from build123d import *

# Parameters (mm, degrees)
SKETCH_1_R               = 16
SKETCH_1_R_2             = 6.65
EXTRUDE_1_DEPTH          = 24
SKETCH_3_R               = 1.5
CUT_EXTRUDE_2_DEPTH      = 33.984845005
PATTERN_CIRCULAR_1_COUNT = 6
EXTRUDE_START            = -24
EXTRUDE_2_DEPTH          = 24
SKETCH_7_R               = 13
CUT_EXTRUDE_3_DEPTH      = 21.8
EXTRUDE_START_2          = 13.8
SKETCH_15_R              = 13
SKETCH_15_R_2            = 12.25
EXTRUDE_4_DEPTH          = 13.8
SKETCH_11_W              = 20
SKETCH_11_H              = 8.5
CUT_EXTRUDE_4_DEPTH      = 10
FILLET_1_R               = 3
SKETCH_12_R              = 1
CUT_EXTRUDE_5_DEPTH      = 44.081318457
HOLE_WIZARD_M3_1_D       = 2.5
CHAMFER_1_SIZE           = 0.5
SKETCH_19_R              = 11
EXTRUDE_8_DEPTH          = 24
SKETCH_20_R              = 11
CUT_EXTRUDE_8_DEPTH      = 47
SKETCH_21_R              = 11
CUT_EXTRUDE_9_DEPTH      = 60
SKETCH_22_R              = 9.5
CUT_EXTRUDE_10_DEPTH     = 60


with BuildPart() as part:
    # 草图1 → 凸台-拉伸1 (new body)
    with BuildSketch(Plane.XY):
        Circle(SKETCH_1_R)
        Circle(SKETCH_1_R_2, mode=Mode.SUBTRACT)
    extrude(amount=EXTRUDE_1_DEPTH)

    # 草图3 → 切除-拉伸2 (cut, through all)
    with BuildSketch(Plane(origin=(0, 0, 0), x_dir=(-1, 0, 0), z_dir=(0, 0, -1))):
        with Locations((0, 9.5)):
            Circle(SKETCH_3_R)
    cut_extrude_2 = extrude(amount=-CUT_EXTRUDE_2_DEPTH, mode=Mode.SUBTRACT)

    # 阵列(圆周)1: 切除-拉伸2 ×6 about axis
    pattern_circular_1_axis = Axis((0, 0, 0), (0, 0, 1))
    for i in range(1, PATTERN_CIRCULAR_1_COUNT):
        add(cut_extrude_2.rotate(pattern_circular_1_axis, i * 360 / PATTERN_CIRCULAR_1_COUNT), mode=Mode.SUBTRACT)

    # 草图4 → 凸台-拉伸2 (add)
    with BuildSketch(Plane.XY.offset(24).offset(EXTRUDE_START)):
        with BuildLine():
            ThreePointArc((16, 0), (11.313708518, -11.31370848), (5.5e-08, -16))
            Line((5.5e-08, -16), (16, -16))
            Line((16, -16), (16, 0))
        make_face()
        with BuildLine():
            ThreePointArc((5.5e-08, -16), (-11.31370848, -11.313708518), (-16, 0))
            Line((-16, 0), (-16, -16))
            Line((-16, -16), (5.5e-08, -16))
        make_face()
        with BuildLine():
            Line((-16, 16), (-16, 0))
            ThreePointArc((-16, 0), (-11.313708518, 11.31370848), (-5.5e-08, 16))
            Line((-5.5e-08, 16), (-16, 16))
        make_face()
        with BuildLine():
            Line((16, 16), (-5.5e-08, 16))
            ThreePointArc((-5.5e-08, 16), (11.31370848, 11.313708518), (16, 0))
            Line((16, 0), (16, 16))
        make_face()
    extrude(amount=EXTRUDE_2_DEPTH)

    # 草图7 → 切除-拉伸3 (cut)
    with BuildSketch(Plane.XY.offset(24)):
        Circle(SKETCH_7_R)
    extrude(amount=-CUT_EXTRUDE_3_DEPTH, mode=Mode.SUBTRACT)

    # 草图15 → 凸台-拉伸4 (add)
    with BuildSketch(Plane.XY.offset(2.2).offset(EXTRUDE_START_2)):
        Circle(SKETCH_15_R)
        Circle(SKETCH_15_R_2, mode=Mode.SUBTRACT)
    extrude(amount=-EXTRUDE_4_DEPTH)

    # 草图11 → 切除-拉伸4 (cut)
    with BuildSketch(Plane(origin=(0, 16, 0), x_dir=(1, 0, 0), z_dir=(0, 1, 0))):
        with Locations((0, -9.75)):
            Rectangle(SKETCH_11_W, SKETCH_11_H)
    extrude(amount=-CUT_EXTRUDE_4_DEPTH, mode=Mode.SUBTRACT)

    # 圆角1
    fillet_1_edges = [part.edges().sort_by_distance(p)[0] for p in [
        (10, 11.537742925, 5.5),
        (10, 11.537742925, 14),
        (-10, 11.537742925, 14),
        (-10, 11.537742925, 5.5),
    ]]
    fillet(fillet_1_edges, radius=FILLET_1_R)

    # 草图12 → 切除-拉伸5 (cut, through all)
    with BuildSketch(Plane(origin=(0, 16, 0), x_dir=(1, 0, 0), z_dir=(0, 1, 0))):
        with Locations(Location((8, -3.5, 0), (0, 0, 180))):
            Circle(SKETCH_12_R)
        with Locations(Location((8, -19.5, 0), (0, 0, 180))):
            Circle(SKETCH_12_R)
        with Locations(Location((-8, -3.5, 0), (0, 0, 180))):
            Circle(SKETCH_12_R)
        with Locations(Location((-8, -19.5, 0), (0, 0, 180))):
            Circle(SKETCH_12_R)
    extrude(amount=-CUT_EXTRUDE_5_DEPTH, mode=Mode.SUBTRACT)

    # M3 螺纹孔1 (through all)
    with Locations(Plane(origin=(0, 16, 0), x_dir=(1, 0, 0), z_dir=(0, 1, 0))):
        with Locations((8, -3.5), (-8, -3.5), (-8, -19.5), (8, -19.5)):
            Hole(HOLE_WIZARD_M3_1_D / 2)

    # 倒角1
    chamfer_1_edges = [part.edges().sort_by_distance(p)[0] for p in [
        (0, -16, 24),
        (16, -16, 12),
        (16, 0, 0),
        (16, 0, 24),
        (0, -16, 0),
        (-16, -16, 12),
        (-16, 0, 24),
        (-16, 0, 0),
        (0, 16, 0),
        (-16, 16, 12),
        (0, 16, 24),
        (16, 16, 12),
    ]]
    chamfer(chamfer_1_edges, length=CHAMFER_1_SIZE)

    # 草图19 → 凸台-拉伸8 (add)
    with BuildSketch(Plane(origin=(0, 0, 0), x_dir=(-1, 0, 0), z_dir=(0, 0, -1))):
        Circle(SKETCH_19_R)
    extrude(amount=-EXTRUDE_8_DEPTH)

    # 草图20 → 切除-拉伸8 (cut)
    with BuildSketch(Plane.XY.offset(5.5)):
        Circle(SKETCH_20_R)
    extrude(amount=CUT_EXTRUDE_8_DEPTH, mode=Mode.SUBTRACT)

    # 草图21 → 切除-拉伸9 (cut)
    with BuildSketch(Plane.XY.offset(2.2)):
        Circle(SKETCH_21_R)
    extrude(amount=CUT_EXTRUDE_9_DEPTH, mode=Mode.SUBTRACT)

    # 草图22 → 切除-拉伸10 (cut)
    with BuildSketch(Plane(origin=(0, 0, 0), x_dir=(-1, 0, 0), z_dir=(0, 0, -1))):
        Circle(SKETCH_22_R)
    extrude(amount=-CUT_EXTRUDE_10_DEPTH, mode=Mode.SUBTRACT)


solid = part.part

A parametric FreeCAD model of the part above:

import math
import FreeCAD as App
import Part
import Sketcher

V = App.Vector
Q = App.Units.Quantity


def edges_at(feature, points):
    """Names of the edges that pass closest to the given points."""
    edges = feature.Shape.Edges
    near = lambda p: min(range(len(edges)), key=lambda i: edges[i].distToShape(Part.Vertex(*p))[0])
    return sorted({f"Edge{near(p) + 1}" for p in points})

doc = App.newDocument("Part")
body = doc.addObject("PartDesign::Body", "Body")

# Sketch on XY plane
sketch1 = doc.addObject("Sketcher::SketchObject", "Sketch")
body.addObject(sketch1)
sketch1.AttachmentSupport = (doc.XY_Plane, [""])
sketch1.MapMode = "FlatFace"
sketch1.addGeometry(Part.Circle(V(0, 0, 0), V(0, 0, 1), 16), False)
sketch1.addGeometry(Part.Circle(V(0, 0, 0), V(0, 0, 1), 7), False)
sketch1.addConstraint(Sketcher.Constraint("Coincident", 0, 3, -1, 1))
sketch1.addConstraint(Sketcher.Constraint("Coincident", 1, 3, -1, 1))
sketch1.addConstraint(Sketcher.Constraint("Diameter", 0, Q("32 mm")))
sketch1.addConstraint(Sketcher.Constraint("Diameter", 1, Q("13.3 mm")))
pad1 = doc.addObject("PartDesign::Pad", "Pad")
body.addObject(pad1)
pad1.Profile = sketch1
pad1.Length = 24

# Sketch on XY plane
sketch2 = doc.addObject("Sketcher::SketchObject", "Sketch001")
body.addObject(sketch2)
sketch2.AttachmentSupport = (doc.XY_Plane, [""])
sketch2.MapMode = "FlatFace"
sketch2.addGeometry(Part.Circle(V(0, 9.5, 0), V(0, 0, 1), 1.5), False)
sketch2.addConstraint(Sketcher.Constraint("PointOnObject", 0, 3, -2))
sketch2.addConstraint(Sketcher.Constraint("Diameter", 0, Q("3 mm")))
sketch2.addConstraint(Sketcher.Constraint("DistanceY", -1, 1, 0, 3, Q("9.5 mm")))
pocket1 = doc.addObject("PartDesign::Pocket", "Pocket")
body.addObject(pocket1)
pocket1.Profile = sketch2
pocket1.Type = "ThroughAll"
pocket1.Reversed = True
doc.recompute()

polarpattern = doc.addObject("PartDesign::PolarPattern", "PolarPattern")
body.addObject(polarpattern)
polarpattern.Originals = [pocket1]
polarpattern.Axis = (doc.Z_Axis, [""])
polarpattern.Angle = 360
polarpattern.Occurrences = 6
body.Tip = polarpattern

# Sketch on XY plane
sketch3 = doc.addObject("Sketcher::SketchObject", "Sketch002")
body.addObject(sketch3)
sketch3.AttachmentSupport = (doc.XY_Plane, [""])
sketch3.MapMode = "FlatFace"
sketch3.addGeometry(Part.ArcOfCircle(Part.Circle(V(0, 0, 0), V(0, 0, 1), 16), math.radians(-90), math.radians(0)), False)
sketch3.addGeometry(Part.LineSegment(V(0, -16, 0), V(16, -16, 0)), False)
sketch3.addGeometry(Part.LineSegment(V(16, -16, 0), V(16, 0, 0)), False)
sketch3.addGeometry(Part.ArcOfCircle(Part.Circle(V(0, 0, 0), V(0, 0, 1), 16), math.radians(180), math.radians(270)), False)
sketch3.addGeometry(Part.LineSegment(V(-16, 0, 0), V(-16, -16, 0)), False)
sketch3.addGeometry(Part.LineSegment(V(-16, -16, 0), V(0, -16, 0)), False)
sketch3.addGeometry(Part.LineSegment(V(-16, 16, 0), V(-16, 0, 0)), False)
sketch3.addGeometry(Part.ArcOfCircle(Part.Circle(V(0, 0, 0), V(0, 0, 1), 16), math.radians(90), math.radians(180)), False)
sketch3.addGeometry(Part.LineSegment(V(0, 16, 0), V(-16, 16, 0)), False)
sketch3.addGeometry(Part.LineSegment(V(16, 16, 0), V(0, 16, 0)), False)
sketch3.addGeometry(Part.ArcOfCircle(Part.Circle(V(0, 0, 0), V(0, 0, 1), 16), math.radians(0), math.radians(90)), False)
sketch3.addGeometry(Part.LineSegment(V(16, 0, 0), V(16, 16, 0)), False)
sketch3.addConstraint(Sketcher.Constraint("Tangent", 0, 1, 1, 1))
sketch3.addConstraint(Sketcher.Constraint("Coincident", 1, 2, 2, 1))
sketch3.addConstraint(Sketcher.Constraint("Tangent", 2, 2, 0, 2))
sketch3.addConstraint(Sketcher.Constraint("Tangent", 3, 1, 4, 1))
sketch3.addConstraint(Sketcher.Constraint("Coincident", 4, 2, 5, 1))
sketch3.addConstraint(Sketcher.Constraint("Tangent", 5, 2, 3, 2))
sketch3.addConstraint(Sketcher.Constraint("Tangent", 6, 2, 7, 2))
sketch3.addConstraint(Sketcher.Constraint("Tangent", 7, 1, 8, 1))
sketch3.addConstraint(Sketcher.Constraint("Coincident", 8, 2, 6, 1))
sketch3.addConstraint(Sketcher.Constraint("Tangent", 9, 2, 10, 2))
sketch3.addConstraint(Sketcher.Constraint("Tangent", 10, 1, 11, 1))
sketch3.addConstraint(Sketcher.Constraint("Coincident", 11, 2, 9, 1))
sketch3.addConstraint(Sketcher.Constraint("Horizontal", 1))
sketch3.addConstraint(Sketcher.Constraint("Vertical", 2))
sketch3.addConstraint(Sketcher.Constraint("Vertical", 4))
sketch3.addConstraint(Sketcher.Constraint("Horizontal", 5))
sketch3.addConstraint(Sketcher.Constraint("Vertical", 6))
sketch3.addConstraint(Sketcher.Constraint("Horizontal", 8))
sketch3.addConstraint(Sketcher.Constraint("Horizontal", 9))
sketch3.addConstraint(Sketcher.Constraint("Vertical", 11))
sketch3.addConstraint(Sketcher.Constraint("Coincident", 0, 3, -1, 1))
sketch3.addConstraint(Sketcher.Constraint("Coincident", 3, 3, -1, 1))
sketch3.addConstraint(Sketcher.Constraint("Coincident", 7, 3, -1, 1))
sketch3.addConstraint(Sketcher.Constraint("Coincident", 10, 3, -1, 1))
sketch3.addConstraint(Sketcher.Constraint("Equal", 0, 3))
sketch3.addConstraint(Sketcher.Constraint("Equal", 3, 7))
sketch3.addConstraint(Sketcher.Constraint("Equal", 7, 10))
sketch3.addConstraint(Sketcher.Constraint("Radius", 0, Q("16 mm")))
pad2 = doc.addObject("PartDesign::Pad", "Pad001")
body.addObject(pad2)
pad2.Profile = sketch3
pad2.Length = 24

# Sketch on XY plane
sketch4 = doc.addObject("Sketcher::SketchObject", "Sketch003")
body.addObject(sketch4)
sketch4.AttachmentSupport = (doc.XY_Plane, [""])
sketch4.MapMode = "FlatFace"
sketch4.AttachmentOffset = App.Placement(V(0, 0, 24), App.Rotation())
sketch4.addGeometry(Part.Circle(V(0, 0, 0), V(0, 0, 1), 13), False)
sketch4.addConstraint(Sketcher.Constraint("Coincident", 0, 3, -1, 1))
sketch4.addConstraint(Sketcher.Constraint("Diameter", 0, Q("26 mm")))
pocket2 = doc.addObject("PartDesign::Pocket", "Pocket001")
body.addObject(pocket2)
pocket2.Profile = sketch4
pocket2.Length = 21.8

# Sketch on XY plane
sketch5 = doc.addObject("Sketcher::SketchObject", "Sketch004")
body.addObject(sketch5)
sketch5.AttachmentSupport = (doc.XY_Plane, [""])
sketch5.MapMode = "FlatFace"
sketch5.AttachmentOffset = App.Placement(V(0, 0, 16), App.Rotation())
sketch5.addGeometry(Part.Circle(V(0, 0, 0), V(0, 0, 1), 13), False)
sketch5.addGeometry(Part.Circle(V(0, 0, 0), V(0, 0, 1), 12), False)
sketch5.addConstraint(Sketcher.Constraint("Coincident", 0, 3, -1, 1))
sketch5.addConstraint(Sketcher.Constraint("Coincident", 1, 3, -1, 1))
sketch5.addConstraint(Sketcher.Constraint("Diameter", 0, Q("26 mm")))
sketch5.addConstraint(Sketcher.Constraint("Diameter", 1, Q("24.5 mm")))
pad3 = doc.addObject("PartDesign::Pad", "Pad002")
body.addObject(pad3)
pad3.Profile = sketch5
pad3.Length = 13.8
pad3.Reversed = True

# Sketch on XZ plane
sketch6 = doc.addObject("Sketcher::SketchObject", "Sketch005")
body.addObject(sketch6)
sketch6.AttachmentSupport = (doc.XZ_Plane, [""])
sketch6.MapMode = "FlatFace"
sketch6.AttachmentOffset = App.Placement(V(0, 0, -16), App.Rotation())
sketch6.addGeometry(Part.LineSegment(V(-10, 6, 0), V(-10, 14, 0)), False)
sketch6.addGeometry(Part.LineSegment(V(-10, 14, 0), V(10, 14, 0)), False)
sketch6.addGeometry(Part.LineSegment(V(10, 14, 0), V(10, 6, 0)), False)
sketch6.addGeometry(Part.LineSegment(V(10, 6, 0), V(-10, 6, 0)), False)
sketch6.addConstraint(Sketcher.Constraint("Coincident", 0, 2, 1, 1))
sketch6.addConstraint(Sketcher.Constraint("Coincident", 1, 2, 2, 1))
sketch6.addConstraint(Sketcher.Constraint("Coincident", 2, 2, 3, 1))
sketch6.addConstraint(Sketcher.Constraint("Coincident", 3, 2, 0, 1))
sketch6.addConstraint(Sketcher.Constraint("Vertical", 0))
sketch6.addConstraint(Sketcher.Constraint("Horizontal", 1))
sketch6.addConstraint(Sketcher.Constraint("Vertical", 2))
sketch6.addConstraint(Sketcher.Constraint("Horizontal", 3))
sketch6.addConstraint(Sketcher.Constraint("DistanceX", 1, 1, 1, 2, Q("20 mm")))
sketch6.addConstraint(Sketcher.Constraint("DistanceY", 0, 1, 0, 2, Q("8.5 mm")))
sketch6.addConstraint(Sketcher.Constraint("DistanceX", 0, 2, -1, 1, Q("10 mm")))
sketch6.addConstraint(Sketcher.Constraint("DistanceY", -1, 1, 0, 2, Q("14 mm")))
pocket3 = doc.addObject("PartDesign::Pocket", "Pocket002")
body.addObject(pocket3)
pocket3.Profile = sketch6
pocket3.Length = 10
pocket3.Reversed = True
doc.recompute()

fillet = doc.addObject("PartDesign::Fillet", "Fillet")
body.addObject(fillet)
fillet.Base = (pocket3, edges_at(pocket3, [
    (10, 11.538, 5.5),
    (10, 11.538, 14),
    (-10, 11.538, 14),
    (-10, 11.538, 5.5),
]))
fillet.Radius = 3

# Sketch on XZ plane
sketch7 = doc.addObject("Sketcher::SketchObject", "Sketch006")
body.addObject(sketch7)
sketch7.AttachmentSupport = (doc.XZ_Plane, [""])
sketch7.MapMode = "FlatFace"
sketch7.AttachmentOffset = App.Placement(V(0, 0, -16), App.Rotation())
sketch7.addGeometry(Part.Circle(V(8, 3.5, 0), V(0, 0, 1), 1), False)
sketch7.addGeometry(Part.Circle(V(8, 19.5, 0), V(0, 0, 1), 1), False)
sketch7.addGeometry(Part.Circle(V(-8, 3.5, 0), V(0, 0, 1), 1), False)
sketch7.addGeometry(Part.Circle(V(-8, 19.5, 0), V(0, 0, 1), 1), False)
sketch7.addConstraint(Sketcher.Constraint("Equal", 0, 1))
sketch7.addConstraint(Sketcher.Constraint("Equal", 1, 2))
sketch7.addConstraint(Sketcher.Constraint("Equal", 2, 3))
sketch7.addConstraint(Sketcher.Constraint("Symmetric", 0, 3, 2, 3, -2))
sketch7.addConstraint(Sketcher.Constraint("Symmetric", 1, 3, 3, 3, -2))
sketch7.addConstraint(Sketcher.Constraint("Vertical", 0, 3, 1, 3))
sketch7.addConstraint(Sketcher.Constraint("Diameter", 0, Q("2 mm")))
sketch7.addConstraint(Sketcher.Constraint("DistanceX", -1, 1, 0, 3, Q("8 mm")))
sketch7.addConstraint(Sketcher.Constraint("DistanceY", 0, 3, 1, 3, Q("16 mm")))
sketch7.addConstraint(Sketcher.Constraint("DistanceY", -1, 1, 0, 3, Q("3.5 mm")))
pocket4 = doc.addObject("PartDesign::Pocket", "Pocket003")
body.addObject(pocket4)
pocket4.Profile = sketch7
pocket4.Type = "ThroughAll"
pocket4.Reversed = True

# Sketch on XZ plane
sketch8 = doc.addObject("Sketcher::SketchObject", "Sketch007")
body.addObject(sketch8)
sketch8.AttachmentSupport = (doc.XZ_Plane, [""])
sketch8.MapMode = "FlatFace"
sketch8.AttachmentOffset = App.Placement(V(0, 0, -16), App.Rotation())
sketch8.addGeometry(Part.Circle(V(8, 3.5, 0), V(0, 0, 1), 1.2), False)
sketch8.addGeometry(Part.Circle(V(-8, 3.5, 0), V(0, 0, 1), 1.2), False)
sketch8.addGeometry(Part.Circle(V(-8, 19.5, 0), V(0, 0, 1), 1.2), False)
sketch8.addGeometry(Part.Circle(V(8, 19.5, 0), V(0, 0, 1), 1.2), False)
sketch8.addConstraint(Sketcher.Constraint("Equal", 0, 1))
sketch8.addConstraint(Sketcher.Constraint("Equal", 1, 2))
sketch8.addConstraint(Sketcher.Constraint("Equal", 2, 3))
sketch8.addConstraint(Sketcher.Constraint("Symmetric", 0, 3, 1, 3, -2))
sketch8.addConstraint(Sketcher.Constraint("Symmetric", 2, 3, 3, 3, -2))
sketch8.addConstraint(Sketcher.Constraint("Vertical", 1, 3, 2, 3))
sketch8.addConstraint(Sketcher.Constraint("Diameter", 0, Q("2.5 mm")))
sketch8.addConstraint(Sketcher.Constraint("DistanceX", -1, 1, 0, 3, Q("8 mm")))
sketch8.addConstraint(Sketcher.Constraint("DistanceY", 1, 3, 2, 3, Q("16 mm")))
sketch8.addConstraint(Sketcher.Constraint("DistanceY", -1, 1, 0, 3, Q("3.5 mm")))
doc.recompute()
hole = doc.addObject("PartDesign::Hole", "Hole")
body.addObject(hole)
hole.Profile = sketch8
hole.ThreadType = "None"
hole.Diameter = 2.5
hole.DepthType = "ThroughAll"
hole.Reversed = True
doc.recompute()

chamfer = doc.addObject("PartDesign::Chamfer", "Chamfer")
body.addObject(chamfer)
chamfer.Base = (hole, edges_at(hole, [
    (0, -16, 24),
    (16, -16, 12),
    (16, 0, 0),
    (16, 0, 24),
    (0, -16, 0),
    (-16, -16, 12),
    (-16, 0, 24),
    (-16, 0, 0),
    (0, 16, 0),
    (-16, 16, 12),
    (0, 16, 24),
    (16, 16, 12),
]))
chamfer.Size = 0.5

# Sketch on XY plane
sketch9 = doc.addObject("Sketcher::SketchObject", "Sketch008")
body.addObject(sketch9)
sketch9.AttachmentSupport = (doc.XY_Plane, [""])
sketch9.MapMode = "FlatFace"
sketch9.addGeometry(Part.Circle(V(0, 0, 0), V(0, 0, 1), 11), False)
sketch9.addConstraint(Sketcher.Constraint("Coincident", 0, 3, -1, 1))
sketch9.addConstraint(Sketcher.Constraint("Diameter", 0, Q("22 mm")))
pad4 = doc.addObject("PartDesign::Pad", "Pad003")
body.addObject(pad4)
pad4.Profile = sketch9
pad4.Length = 24

# Sketch on XY plane
sketch10 = doc.addObject("Sketcher::SketchObject", "Sketch009")
body.addObject(sketch10)
sketch10.AttachmentSupport = (doc.XY_Plane, [""])
sketch10.MapMode = "FlatFace"
sketch10.AttachmentOffset = App.Placement(V(0, 0, 5.5), App.Rotation())
sketch10.addGeometry(Part.Circle(V(0, 0, 0), V(0, 0, 1), 11), False)
sketch10.addConstraint(Sketcher.Constraint("Coincident", 0, 3, -1, 1))
sketch10.addConstraint(Sketcher.Constraint("Diameter", 0, Q("22 mm")))
pocket5 = doc.addObject("PartDesign::Pocket", "Pocket004")
body.addObject(pocket5)
pocket5.Profile = sketch10
pocket5.Length = 47
pocket5.Reversed = True

# Sketch on XY plane
sketch11 = doc.addObject("Sketcher::SketchObject", "Sketch010")
body.addObject(sketch11)
sketch11.AttachmentSupport = (doc.XY_Plane, [""])
sketch11.MapMode = "FlatFace"
sketch11.AttachmentOffset = App.Placement(V(0, 0, 2.2), App.Rotation())
sketch11.addGeometry(Part.Circle(V(0, 0, 0), V(0, 0, 1), 11), False)
sketch11.addConstraint(Sketcher.Constraint("Coincident", 0, 3, -1, 1))
sketch11.addConstraint(Sketcher.Constraint("Diameter", 0, Q("22 mm")))
pocket6 = doc.addObject("PartDesign::Pocket", "Pocket005")
body.addObject(pocket6)
pocket6.Profile = sketch11
pocket6.Length = 60
pocket6.Reversed = True

# Sketch on XY plane
sketch12 = doc.addObject("Sketcher::SketchObject", "Sketch011")
body.addObject(sketch12)
sketch12.AttachmentSupport = (doc.XY_Plane, [""])
sketch12.MapMode = "FlatFace"
sketch12.addGeometry(Part.Circle(V(0, 0, 0), V(0, 0, 1), 10), False)
sketch12.addConstraint(Sketcher.Constraint("Coincident", 0, 3, -1, 1))
sketch12.addConstraint(Sketcher.Constraint("Diameter", 0, Q("19 mm")))
pocket7 = doc.addObject("PartDesign::Pocket", "Pocket006")
body.addObject(pocket7)
pocket7.Profile = sketch12
pocket7.Length = 60
pocket7.Reversed = True

doc.recompute()
